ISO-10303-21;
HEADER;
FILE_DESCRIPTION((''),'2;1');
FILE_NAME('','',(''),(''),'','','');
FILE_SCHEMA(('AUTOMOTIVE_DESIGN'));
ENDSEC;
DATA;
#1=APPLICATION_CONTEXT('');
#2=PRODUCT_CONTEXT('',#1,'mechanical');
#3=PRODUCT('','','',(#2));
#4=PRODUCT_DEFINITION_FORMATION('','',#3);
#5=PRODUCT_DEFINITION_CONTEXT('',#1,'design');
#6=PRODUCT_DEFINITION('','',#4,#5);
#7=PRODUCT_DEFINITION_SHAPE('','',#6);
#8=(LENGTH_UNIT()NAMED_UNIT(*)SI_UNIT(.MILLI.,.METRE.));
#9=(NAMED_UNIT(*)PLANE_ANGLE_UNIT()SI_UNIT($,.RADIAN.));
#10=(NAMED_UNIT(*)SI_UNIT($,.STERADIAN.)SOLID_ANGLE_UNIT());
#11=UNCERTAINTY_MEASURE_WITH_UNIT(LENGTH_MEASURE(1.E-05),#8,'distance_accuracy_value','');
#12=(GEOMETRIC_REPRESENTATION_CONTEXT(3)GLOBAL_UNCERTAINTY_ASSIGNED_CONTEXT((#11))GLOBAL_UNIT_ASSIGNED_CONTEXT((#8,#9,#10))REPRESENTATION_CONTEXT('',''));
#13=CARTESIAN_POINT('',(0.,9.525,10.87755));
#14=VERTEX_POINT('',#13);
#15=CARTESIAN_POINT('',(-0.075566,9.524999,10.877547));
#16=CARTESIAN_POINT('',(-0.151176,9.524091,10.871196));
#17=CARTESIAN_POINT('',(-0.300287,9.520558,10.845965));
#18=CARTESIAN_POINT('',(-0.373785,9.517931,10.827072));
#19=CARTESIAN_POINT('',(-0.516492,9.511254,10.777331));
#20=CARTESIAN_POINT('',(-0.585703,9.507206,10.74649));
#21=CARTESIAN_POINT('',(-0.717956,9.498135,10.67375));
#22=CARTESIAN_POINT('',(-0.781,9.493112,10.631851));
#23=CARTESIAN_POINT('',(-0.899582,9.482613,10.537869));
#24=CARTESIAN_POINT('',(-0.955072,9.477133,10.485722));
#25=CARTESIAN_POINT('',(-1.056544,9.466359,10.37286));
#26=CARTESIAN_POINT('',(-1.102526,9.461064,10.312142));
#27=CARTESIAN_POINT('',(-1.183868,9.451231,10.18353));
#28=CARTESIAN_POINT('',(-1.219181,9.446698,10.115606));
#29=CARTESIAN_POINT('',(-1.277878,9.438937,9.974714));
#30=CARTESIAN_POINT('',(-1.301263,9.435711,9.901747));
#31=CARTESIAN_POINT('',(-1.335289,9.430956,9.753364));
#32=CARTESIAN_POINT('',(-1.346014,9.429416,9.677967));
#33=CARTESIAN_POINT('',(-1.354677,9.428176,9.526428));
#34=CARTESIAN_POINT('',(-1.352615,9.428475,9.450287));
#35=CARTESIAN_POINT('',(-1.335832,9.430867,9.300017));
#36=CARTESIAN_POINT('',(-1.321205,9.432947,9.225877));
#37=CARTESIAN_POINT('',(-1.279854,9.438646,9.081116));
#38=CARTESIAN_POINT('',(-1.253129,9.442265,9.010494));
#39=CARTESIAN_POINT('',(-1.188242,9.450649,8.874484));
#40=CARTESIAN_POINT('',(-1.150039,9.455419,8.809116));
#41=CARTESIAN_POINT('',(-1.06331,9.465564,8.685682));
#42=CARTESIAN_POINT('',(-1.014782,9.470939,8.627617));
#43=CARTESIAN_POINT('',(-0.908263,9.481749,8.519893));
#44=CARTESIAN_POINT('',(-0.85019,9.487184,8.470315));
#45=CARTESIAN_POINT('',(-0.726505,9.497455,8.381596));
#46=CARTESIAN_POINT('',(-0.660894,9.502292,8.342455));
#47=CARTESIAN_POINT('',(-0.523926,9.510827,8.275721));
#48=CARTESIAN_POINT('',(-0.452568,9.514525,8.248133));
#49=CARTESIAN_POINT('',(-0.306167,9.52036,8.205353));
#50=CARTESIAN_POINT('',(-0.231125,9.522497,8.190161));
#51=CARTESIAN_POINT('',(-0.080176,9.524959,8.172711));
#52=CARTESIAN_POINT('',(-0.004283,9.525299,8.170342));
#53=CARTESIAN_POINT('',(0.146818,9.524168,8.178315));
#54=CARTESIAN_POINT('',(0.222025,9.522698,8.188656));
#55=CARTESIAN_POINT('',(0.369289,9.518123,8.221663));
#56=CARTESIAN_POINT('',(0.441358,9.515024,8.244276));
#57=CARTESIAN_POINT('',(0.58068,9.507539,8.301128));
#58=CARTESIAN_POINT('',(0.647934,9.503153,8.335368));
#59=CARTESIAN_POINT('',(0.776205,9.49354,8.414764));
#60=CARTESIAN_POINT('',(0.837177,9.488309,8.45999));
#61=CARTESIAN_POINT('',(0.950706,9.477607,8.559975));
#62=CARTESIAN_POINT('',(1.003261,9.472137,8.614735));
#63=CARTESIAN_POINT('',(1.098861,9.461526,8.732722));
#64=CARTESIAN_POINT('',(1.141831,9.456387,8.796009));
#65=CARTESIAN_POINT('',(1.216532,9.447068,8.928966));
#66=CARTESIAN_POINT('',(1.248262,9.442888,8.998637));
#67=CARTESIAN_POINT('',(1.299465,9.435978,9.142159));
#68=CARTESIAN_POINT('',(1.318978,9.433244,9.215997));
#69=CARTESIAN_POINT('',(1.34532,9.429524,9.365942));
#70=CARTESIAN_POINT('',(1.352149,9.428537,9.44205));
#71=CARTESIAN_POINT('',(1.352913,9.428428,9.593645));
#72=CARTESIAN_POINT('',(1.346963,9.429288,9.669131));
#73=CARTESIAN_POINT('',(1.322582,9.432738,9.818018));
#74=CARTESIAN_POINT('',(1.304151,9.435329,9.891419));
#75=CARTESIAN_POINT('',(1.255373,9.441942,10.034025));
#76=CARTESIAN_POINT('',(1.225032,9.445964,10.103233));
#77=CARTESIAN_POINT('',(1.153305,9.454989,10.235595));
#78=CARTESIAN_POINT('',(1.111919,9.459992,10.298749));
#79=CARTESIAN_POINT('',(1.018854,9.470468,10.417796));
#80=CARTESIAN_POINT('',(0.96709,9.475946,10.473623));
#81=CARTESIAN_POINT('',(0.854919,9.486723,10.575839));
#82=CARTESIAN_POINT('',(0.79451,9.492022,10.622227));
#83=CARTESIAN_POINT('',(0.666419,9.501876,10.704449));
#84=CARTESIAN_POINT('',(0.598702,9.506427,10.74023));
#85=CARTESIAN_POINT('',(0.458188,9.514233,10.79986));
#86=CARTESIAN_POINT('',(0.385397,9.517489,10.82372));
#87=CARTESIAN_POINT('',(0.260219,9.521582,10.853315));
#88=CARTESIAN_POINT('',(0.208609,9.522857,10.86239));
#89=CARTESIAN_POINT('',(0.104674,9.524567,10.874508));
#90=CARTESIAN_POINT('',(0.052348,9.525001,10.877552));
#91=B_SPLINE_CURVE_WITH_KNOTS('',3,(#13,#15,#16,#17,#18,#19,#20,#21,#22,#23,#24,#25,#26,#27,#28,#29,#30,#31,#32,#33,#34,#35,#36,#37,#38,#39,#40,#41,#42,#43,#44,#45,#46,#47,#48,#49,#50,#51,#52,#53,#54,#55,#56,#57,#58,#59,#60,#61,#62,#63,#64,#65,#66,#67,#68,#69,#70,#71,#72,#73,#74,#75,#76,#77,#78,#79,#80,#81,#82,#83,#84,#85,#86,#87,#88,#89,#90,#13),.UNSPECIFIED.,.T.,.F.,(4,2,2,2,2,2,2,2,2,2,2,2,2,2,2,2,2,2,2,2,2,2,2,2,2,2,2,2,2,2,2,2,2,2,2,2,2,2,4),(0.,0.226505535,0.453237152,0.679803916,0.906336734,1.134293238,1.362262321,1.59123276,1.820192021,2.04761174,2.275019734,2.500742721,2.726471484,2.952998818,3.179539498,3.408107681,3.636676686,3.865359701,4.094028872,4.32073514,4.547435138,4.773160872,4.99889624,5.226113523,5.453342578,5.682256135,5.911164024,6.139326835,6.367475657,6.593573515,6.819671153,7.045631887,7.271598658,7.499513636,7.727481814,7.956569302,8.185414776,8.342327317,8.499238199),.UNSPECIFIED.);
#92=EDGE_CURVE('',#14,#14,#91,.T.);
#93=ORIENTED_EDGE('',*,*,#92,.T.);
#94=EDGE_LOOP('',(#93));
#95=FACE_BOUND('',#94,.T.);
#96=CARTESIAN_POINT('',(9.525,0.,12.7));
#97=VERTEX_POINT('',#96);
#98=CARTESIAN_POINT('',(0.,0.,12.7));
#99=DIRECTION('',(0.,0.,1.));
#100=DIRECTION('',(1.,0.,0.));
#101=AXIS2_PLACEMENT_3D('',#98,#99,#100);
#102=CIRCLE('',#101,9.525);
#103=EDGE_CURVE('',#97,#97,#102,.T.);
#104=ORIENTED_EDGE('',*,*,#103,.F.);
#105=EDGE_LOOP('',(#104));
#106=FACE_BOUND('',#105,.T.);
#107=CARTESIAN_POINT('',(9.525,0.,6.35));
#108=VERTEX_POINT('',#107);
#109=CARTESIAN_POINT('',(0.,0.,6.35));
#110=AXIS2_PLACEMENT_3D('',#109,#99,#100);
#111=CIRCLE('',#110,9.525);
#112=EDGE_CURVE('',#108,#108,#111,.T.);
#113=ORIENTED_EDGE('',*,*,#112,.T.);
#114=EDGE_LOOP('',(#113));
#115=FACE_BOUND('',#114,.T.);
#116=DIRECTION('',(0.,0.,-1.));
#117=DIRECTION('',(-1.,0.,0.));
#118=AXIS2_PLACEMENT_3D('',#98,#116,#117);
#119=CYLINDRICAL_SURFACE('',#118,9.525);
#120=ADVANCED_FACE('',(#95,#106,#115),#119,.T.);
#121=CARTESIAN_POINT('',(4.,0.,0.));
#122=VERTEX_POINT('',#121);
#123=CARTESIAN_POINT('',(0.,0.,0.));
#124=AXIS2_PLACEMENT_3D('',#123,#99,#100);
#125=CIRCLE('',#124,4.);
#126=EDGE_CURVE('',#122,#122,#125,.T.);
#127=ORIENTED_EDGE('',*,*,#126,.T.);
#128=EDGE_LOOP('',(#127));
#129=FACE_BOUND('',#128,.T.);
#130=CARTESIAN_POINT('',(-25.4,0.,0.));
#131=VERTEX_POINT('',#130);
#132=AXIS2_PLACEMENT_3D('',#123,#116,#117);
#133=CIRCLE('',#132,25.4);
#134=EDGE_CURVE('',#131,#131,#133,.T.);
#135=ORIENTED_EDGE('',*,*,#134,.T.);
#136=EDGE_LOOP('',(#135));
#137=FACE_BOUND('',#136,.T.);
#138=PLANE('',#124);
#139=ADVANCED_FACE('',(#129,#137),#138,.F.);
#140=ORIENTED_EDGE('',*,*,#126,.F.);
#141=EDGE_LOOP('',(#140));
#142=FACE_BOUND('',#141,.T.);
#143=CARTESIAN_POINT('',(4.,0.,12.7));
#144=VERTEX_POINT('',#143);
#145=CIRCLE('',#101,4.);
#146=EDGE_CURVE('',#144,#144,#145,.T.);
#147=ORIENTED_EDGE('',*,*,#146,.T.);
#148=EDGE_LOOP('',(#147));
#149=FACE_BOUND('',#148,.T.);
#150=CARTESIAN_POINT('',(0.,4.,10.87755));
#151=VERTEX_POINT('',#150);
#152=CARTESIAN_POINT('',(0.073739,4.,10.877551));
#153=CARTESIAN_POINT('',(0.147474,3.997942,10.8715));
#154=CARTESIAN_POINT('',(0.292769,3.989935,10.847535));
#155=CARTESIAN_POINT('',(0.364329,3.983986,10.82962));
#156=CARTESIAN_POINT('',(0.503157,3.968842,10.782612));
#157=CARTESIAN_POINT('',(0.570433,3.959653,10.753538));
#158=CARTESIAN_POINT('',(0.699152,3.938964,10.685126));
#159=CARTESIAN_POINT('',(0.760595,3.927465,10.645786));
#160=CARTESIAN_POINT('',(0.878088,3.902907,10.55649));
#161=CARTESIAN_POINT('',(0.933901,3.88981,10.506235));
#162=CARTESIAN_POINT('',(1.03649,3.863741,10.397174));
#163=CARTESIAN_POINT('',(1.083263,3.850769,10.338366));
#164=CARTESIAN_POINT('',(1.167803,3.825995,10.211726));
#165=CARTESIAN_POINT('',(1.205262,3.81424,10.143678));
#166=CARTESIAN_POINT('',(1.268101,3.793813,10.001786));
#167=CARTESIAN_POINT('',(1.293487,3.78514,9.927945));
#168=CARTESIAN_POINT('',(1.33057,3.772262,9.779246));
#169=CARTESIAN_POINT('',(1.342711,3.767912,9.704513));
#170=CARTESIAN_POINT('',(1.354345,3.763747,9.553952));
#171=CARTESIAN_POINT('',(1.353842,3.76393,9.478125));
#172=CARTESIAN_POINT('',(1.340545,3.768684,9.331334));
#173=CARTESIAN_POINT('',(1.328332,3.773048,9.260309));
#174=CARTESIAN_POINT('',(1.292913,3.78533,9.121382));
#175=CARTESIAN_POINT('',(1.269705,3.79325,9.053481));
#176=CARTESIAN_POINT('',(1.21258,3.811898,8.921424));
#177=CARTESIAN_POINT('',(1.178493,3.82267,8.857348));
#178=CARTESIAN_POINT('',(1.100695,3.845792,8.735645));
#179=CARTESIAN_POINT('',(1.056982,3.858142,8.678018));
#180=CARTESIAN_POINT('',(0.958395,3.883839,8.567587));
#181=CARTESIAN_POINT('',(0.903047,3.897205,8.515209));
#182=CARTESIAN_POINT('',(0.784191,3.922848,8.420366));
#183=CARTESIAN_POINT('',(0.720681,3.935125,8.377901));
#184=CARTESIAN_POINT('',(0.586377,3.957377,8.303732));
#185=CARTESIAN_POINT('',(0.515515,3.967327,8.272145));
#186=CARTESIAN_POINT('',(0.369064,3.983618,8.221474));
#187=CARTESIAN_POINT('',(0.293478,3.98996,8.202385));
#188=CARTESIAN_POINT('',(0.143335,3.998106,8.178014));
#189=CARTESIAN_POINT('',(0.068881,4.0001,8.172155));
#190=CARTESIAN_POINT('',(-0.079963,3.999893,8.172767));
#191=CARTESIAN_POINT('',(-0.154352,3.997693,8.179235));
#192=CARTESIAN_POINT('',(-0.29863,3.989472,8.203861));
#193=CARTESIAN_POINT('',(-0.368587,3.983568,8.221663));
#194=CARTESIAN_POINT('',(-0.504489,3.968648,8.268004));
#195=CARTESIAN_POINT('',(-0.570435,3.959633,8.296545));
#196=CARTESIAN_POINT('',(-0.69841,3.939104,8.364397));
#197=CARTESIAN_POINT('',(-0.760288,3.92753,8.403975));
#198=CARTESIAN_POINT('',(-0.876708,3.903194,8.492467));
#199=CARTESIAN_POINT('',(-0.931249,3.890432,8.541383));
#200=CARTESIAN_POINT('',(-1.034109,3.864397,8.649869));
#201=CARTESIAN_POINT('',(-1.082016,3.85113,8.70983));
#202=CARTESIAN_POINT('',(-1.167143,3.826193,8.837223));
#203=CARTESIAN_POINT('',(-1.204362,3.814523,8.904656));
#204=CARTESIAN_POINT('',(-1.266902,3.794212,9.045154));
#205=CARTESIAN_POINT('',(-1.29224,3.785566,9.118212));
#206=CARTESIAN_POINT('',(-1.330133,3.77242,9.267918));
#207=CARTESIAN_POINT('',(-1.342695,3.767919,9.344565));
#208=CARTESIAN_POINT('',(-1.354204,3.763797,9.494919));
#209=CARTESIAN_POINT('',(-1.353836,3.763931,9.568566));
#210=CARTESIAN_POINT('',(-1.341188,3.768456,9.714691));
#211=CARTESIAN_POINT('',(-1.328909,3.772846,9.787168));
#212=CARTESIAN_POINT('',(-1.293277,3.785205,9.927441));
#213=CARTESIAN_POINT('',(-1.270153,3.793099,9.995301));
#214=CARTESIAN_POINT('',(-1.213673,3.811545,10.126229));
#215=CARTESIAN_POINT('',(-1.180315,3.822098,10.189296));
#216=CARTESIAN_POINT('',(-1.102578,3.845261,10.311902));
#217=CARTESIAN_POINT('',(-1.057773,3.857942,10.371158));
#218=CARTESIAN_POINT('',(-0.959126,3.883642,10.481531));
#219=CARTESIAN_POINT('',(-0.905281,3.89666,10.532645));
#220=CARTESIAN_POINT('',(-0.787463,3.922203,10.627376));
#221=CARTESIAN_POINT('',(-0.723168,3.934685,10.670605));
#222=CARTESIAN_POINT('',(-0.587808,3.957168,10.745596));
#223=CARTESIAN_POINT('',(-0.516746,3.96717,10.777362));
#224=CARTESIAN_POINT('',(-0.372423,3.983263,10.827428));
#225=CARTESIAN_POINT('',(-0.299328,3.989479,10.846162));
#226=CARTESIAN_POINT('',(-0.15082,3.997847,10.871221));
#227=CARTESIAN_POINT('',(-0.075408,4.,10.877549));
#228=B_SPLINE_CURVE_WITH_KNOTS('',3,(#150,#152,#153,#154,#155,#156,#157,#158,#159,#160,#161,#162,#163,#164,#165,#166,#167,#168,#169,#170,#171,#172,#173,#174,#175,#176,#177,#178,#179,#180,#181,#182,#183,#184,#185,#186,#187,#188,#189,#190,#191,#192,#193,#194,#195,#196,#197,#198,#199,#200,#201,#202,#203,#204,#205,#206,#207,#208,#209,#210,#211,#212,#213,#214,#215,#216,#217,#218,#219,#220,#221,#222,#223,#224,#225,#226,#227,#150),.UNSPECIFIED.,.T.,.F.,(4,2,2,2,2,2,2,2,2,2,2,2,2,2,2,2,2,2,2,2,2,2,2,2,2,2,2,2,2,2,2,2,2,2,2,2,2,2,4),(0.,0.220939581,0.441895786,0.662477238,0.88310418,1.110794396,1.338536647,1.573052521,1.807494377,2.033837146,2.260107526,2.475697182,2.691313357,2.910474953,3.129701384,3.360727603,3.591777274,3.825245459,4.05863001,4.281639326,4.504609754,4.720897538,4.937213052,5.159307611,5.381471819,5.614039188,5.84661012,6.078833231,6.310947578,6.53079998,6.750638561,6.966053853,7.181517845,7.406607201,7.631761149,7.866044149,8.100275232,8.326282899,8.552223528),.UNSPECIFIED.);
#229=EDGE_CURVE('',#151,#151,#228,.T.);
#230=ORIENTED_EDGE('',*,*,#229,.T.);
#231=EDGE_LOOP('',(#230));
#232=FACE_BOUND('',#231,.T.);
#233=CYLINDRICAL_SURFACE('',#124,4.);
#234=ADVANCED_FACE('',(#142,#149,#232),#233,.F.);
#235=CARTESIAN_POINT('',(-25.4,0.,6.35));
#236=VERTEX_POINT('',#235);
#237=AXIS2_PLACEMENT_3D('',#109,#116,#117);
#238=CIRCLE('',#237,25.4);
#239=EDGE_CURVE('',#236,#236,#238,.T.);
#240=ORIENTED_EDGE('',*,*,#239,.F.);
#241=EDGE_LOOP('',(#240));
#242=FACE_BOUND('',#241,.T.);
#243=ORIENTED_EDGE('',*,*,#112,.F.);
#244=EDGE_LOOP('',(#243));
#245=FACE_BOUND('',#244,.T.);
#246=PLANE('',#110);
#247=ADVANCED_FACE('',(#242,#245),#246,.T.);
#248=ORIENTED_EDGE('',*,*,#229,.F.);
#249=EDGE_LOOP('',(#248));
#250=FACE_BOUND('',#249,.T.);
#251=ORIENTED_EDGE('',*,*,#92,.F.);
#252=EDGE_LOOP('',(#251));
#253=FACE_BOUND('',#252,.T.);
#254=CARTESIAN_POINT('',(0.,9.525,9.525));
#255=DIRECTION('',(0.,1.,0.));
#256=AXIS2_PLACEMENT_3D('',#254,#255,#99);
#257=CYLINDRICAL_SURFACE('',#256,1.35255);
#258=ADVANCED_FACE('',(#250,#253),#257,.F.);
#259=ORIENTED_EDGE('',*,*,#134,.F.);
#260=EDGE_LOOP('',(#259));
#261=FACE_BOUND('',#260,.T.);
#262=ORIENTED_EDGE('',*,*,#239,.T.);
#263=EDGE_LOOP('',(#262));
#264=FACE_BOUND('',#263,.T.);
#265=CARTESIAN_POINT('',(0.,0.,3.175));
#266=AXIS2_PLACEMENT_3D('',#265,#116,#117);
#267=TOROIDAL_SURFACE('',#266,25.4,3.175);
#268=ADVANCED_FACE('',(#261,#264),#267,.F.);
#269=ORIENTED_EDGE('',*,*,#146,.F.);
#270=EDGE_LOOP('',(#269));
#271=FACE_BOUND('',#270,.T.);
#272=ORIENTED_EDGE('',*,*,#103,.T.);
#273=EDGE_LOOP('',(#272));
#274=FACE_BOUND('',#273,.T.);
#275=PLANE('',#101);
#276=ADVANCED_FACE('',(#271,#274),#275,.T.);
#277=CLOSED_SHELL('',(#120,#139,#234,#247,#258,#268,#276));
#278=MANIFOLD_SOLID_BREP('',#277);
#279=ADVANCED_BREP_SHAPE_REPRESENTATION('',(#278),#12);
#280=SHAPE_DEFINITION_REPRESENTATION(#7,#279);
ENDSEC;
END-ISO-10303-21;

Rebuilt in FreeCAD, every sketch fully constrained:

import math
import FreeCAD as App
import Part
import Sketcher
Q = App.Units.Quantity

doc = App.newDocument("Part")
body = doc.addObject("PartDesign::Body", "Body")

sketch1 = doc.addObject("Sketcher::SketchObject", "Sketch")
body.addObject(sketch1)
sketch1.AttachmentSupport = (doc.XY_Plane, [""])
sketch1.MapMode = "FlatFace"
sketch1.addGeometry(Part.Circle(App.Vector(0, 0, 0), App.Vector(0, 0, 1), 25), False)
sketch1.addConstraint(Sketcher.Constraint("Coincident", 0, 3, -1, 1))
sketch1.addConstraint(Sketcher.Constraint("Diameter", 0, Q("2 in")))
pad1 = doc.addObject("PartDesign::Pad", "Pad")
body.addObject(pad1)
pad1.Profile = sketch1
pad1.Length = Q("0.25 in")

sketch2 = doc.addObject("Sketcher::SketchObject", "Sketch001")
body.addObject(sketch2)
sketch2.AttachmentSupport = (doc.XY_Plane, [""])
sketch2.MapMode = "FlatFace"
sketch2.AttachmentOffset = App.Placement(App.Vector(0, 0, 0.25 * 25.4), App.Rotation())
sketch2.addGeometry(Part.Circle(App.Vector(0, 0, 0), App.Vector(0, 0, 1), 10), False)
sketch2.addConstraint(Sketcher.Constraint("Coincident", 0, 3, -1, 1))
sketch2.addConstraint(Sketcher.Constraint("Diameter", 0, Q("0.75 in")))
pad2 = doc.addObject("PartDesign::Pad", "Pad001")
body.addObject(pad2)
pad2.Profile = sketch2
pad2.Length = Q("0.25 in")

sketch3 = doc.addObject("Sketcher::SketchObject", "Sketch002")
body.addObject(sketch3)
sketch3.AttachmentSupport = (doc.XY_Plane, [""])
sketch3.MapMode = "FlatFace"
sketch3.AttachmentOffset = App.Placement(App.Vector(0, 0, 0.5 * 25.4), App.Rotation())
sketch3.addGeometry(Part.Circle(App.Vector(0, 0, 0), App.Vector(0, 0, 1), 4), False)
sketch3.addConstraint(Sketcher.Constraint("Coincident", 0, 3, -1, 1))
sketch3.addConstraint(Sketcher.Constraint("Diameter", 0, 8.0))
pocket1 = doc.addObject("PartDesign::Pocket", "Pocket")
body.addObject(pocket1)
pocket1.Profile = sketch3
pocket1.Length = Q("0.5 in")

sketch4 = doc.addObject("Sketcher::SketchObject", "Sketch003")
body.addObject(sketch4)
sketch4.AttachmentSupport = (doc.XZ_Plane, [""])
sketch4.MapMode = "FlatFace"
sketch4.addGeometry(Part.LineSegment(App.Vector(25.4, 6.3, 0), App.Vector(25.4, 0, 0)), False)
sketch4.addGeometry(Part.ArcOfCircle(Part.Circle(App.Vector(25.4, 3.2, 0), App.Vector(0, 0, 1), 3.2), math.radians(90), math.radians(270)), False)
sketch4.addConstraint(Sketcher.Constraint("Coincident", 0, 1, 1, 1))
sketch4.addConstraint(Sketcher.Constraint("Coincident", 1, 2, 0, 2))
sketch4.addConstraint(Sketcher.Constraint("Vertical", 0))
sketch4.addConstraint(Sketcher.Constraint("PointOnObject", 1, 2, -1))
sketch4.addConstraint(Sketcher.Constraint("Vertical", 1, 3, 0, 1))
sketch4.addConstraint(Sketcher.Constraint("DistanceX", -1, 1, 1, 3, Q("1 in")))
sketch4.addConstraint(Sketcher.Constraint("Radius", 1, Q("0.125 in")))
groove = doc.addObject("PartDesign::Groove", "Groove")
body.addObject(groove)
groove.Profile = sketch4
groove.ReferenceAxis = (sketch4, ["V_Axis"])
groove.Angle = 360

sketch5 = doc.addObject("Sketcher::SketchObject", "Sketch004")
body.addObject(sketch5)
sketch5.AttachmentSupport = (doc.XZ_Plane, [""])
sketch5.MapMode = "FlatFace"
sketch5.AttachmentOffset = App.Placement(App.Vector(0, 0, -0.375 * 25.4), App.Rotation())
sketch5.addGeometry(Part.Circle(App.Vector(0, 9.5, 0), App.Vector(0, 0, 1), 1.4), False)
sketch5.addConstraint(Sketcher.Constraint("PointOnObject", 0, 3, -2))
sketch5.addConstraint(Sketcher.Constraint("Diameter", 0, Q("0.1065 in")))
sketch5.addConstraint(Sketcher.Constraint("DistanceY", -1, 1, 0, 3, Q("0.375 in")))
doc.recompute()
hole = doc.addObject("PartDesign::Hole", "Hole")
body.addObject(hole)
hole.Profile = sketch5
hole.ThreadType = "None"
hole.Diameter = Q("0.1065 in")
hole.DepthType = "Dimension"
hole.Depth = 9.524
hole.DrillPoint = "Angled"
hole.DrillPointAngle = 118
hole.Reversed = True

doc.recompute()
